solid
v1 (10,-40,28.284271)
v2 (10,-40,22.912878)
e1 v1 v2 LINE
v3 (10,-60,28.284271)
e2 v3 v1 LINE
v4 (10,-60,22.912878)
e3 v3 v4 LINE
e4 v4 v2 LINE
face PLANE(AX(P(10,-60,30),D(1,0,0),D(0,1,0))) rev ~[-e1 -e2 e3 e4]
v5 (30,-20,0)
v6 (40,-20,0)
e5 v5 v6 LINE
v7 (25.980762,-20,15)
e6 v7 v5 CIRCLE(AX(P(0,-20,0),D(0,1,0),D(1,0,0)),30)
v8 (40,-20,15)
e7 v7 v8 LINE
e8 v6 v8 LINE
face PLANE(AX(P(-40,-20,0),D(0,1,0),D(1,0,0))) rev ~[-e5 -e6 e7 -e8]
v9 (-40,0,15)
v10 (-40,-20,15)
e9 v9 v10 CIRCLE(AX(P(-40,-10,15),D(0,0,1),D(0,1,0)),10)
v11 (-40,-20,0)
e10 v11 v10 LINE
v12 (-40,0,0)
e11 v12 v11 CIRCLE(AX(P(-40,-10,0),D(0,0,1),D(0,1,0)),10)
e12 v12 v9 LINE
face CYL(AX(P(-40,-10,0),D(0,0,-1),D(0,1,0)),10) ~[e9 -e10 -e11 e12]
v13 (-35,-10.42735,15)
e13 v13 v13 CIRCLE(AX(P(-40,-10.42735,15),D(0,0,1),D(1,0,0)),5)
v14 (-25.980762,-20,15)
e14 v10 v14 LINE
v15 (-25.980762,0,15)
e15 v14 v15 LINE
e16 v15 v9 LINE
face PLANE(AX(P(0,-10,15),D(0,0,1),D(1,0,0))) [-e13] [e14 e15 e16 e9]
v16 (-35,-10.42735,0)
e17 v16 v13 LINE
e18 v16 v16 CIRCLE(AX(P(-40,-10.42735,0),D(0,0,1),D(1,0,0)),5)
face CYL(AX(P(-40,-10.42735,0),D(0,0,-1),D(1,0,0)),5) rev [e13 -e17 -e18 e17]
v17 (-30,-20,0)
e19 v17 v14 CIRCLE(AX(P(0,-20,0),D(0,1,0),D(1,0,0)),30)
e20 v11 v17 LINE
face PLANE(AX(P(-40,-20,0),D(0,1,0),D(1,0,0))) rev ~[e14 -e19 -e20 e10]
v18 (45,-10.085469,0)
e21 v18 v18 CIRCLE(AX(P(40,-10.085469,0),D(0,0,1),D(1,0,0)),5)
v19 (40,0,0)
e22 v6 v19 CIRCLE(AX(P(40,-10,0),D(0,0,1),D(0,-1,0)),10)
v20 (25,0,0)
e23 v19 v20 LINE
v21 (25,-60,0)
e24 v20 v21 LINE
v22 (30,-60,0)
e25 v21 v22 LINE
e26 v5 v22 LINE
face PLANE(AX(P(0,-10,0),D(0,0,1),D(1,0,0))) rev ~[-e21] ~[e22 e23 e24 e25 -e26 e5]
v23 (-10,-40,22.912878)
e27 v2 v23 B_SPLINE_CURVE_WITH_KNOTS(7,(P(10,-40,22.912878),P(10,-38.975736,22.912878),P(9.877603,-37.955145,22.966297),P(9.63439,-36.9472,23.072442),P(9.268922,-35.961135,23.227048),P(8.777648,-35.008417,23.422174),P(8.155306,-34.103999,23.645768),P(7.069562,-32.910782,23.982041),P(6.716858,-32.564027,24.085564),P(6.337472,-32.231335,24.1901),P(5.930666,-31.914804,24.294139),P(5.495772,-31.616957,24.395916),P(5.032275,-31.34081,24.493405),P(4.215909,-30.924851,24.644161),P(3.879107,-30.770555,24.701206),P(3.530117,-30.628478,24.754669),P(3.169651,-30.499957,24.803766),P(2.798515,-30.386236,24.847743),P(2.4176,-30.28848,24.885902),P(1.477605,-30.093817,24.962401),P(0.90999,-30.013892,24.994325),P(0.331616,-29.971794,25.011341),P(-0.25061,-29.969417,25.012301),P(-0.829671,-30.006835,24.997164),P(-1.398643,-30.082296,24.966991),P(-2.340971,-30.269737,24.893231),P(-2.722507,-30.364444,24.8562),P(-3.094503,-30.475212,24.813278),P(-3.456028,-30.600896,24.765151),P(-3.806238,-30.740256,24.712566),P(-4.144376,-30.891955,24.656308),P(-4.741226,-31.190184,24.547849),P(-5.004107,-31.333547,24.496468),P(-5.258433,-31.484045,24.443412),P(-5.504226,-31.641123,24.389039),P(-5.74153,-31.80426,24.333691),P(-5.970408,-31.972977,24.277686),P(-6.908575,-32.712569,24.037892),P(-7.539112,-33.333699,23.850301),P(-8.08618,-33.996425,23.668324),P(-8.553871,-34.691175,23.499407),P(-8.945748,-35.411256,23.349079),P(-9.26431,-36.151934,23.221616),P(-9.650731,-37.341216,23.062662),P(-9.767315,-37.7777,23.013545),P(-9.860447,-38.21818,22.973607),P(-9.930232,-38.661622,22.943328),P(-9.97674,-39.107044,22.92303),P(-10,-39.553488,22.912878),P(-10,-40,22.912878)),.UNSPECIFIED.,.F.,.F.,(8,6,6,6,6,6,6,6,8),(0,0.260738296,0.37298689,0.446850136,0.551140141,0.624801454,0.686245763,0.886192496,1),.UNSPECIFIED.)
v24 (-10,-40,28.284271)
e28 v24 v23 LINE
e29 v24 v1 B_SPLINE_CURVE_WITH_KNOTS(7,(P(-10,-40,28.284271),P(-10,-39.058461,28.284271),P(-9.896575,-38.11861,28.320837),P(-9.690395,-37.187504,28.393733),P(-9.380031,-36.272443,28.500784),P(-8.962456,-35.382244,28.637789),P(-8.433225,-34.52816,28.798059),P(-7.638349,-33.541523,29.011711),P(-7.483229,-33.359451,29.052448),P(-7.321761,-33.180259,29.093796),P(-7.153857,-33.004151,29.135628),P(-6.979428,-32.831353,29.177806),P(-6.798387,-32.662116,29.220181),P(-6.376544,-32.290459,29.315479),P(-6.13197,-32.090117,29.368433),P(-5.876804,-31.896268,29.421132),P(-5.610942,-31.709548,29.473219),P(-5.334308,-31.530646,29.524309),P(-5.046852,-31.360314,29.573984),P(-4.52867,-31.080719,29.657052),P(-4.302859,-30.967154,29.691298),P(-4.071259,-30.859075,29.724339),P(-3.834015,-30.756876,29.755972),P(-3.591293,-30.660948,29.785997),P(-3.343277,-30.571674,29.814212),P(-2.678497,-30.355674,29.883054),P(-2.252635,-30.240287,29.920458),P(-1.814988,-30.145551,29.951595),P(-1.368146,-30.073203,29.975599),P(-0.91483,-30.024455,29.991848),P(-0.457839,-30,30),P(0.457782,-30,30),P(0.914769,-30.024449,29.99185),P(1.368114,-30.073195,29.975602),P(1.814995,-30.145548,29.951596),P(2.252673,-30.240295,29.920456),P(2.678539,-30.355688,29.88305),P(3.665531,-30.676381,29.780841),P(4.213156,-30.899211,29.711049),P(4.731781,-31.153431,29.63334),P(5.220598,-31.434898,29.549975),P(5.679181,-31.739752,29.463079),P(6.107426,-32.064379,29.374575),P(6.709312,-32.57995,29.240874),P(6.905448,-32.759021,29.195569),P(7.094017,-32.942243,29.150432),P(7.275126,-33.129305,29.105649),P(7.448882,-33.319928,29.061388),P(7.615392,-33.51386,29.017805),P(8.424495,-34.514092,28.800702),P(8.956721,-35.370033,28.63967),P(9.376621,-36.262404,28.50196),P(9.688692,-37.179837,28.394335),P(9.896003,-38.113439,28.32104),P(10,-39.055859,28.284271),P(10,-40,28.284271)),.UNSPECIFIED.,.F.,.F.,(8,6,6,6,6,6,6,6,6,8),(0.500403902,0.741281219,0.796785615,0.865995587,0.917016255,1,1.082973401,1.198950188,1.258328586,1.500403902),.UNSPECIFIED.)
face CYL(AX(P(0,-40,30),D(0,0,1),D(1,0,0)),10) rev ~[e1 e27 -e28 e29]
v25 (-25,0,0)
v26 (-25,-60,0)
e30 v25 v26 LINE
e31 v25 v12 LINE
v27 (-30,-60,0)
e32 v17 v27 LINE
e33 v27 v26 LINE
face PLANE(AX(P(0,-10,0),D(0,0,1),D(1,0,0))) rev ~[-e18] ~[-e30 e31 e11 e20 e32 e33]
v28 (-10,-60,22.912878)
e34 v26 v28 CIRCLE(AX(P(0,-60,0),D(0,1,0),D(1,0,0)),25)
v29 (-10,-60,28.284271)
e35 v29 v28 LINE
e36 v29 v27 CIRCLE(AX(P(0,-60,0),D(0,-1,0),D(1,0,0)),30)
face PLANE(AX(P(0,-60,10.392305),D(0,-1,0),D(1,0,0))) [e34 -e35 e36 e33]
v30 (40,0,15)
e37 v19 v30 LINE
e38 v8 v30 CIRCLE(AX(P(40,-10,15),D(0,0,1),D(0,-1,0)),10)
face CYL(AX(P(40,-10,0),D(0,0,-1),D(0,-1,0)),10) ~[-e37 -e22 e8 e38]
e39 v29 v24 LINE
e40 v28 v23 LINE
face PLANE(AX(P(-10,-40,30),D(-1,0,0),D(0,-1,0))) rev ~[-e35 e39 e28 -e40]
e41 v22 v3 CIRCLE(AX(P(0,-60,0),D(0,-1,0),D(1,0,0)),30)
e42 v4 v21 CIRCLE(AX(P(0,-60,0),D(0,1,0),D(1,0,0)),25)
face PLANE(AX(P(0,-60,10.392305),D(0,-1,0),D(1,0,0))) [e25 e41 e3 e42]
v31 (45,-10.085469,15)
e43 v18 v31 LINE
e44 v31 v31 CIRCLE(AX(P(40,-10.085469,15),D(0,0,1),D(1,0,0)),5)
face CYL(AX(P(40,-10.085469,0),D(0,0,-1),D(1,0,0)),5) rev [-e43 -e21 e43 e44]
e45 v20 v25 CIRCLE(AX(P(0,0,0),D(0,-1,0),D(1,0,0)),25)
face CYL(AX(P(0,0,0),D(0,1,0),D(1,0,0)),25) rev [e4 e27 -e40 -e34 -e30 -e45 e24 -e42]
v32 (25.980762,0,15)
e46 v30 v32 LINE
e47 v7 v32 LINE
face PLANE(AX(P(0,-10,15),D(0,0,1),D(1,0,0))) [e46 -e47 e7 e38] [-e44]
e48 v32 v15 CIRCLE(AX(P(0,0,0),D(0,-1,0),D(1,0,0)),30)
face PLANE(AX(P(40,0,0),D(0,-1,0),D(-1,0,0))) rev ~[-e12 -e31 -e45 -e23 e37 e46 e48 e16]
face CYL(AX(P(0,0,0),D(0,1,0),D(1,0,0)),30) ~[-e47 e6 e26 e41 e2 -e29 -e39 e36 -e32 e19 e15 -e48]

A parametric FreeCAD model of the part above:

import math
import FreeCAD as App
import Part
import Sketcher

V = App.Vector

doc = App.newDocument("Part")
body = doc.addObject("PartDesign::Body", "Body")

sketch1 = body.newObject("Sketcher::SketchObject", "Sketch")
sketch1.AttachmentSupport = (doc.getObject("XZ_Plane"), [""])
sketch1.MapMode = "FlatFace"
sketch1.addGeometry(Part.ArcOfCircle(Part.Circle(V(0, 0, 0), V(0, 0, 1), 30), math.radians(0), math.radians(180)), False)
sketch1.addGeometry(Part.LineSegment(V(-30, 0, 0), V(30, 0, 0)), False)
sketch1.addConstraint(Sketcher.Constraint("Coincident", 0, 1, 1, 2))
sketch1.addConstraint(Sketcher.Constraint("Coincident", 1, 1, 0, 2))
sketch1.addConstraint(Sketcher.Constraint("Horizontal", 1))
sketch1.addConstraint(Sketcher.Constraint("Coincident", 0, 3, -1, 1))
sketch1.addConstraint(Sketcher.Constraint("PointOnObject", 0, 1, -1))
sketch1.addConstraint(Sketcher.Constraint("Radius", 0, 30.0))
pad1 = body.newObject("PartDesign::Pad", "Pad")
pad1.Profile = sketch1
pad1.Length = 60

sketch2 = body.newObject("Sketcher::SketchObject", "Sketch001")
sketch2.AttachmentSupport = (doc.getObject("XY_Plane"), [""])
sketch2.MapMode = "FlatFace"
sketch2.addGeometry(Part.LineSegment(V(40, 0, 0), V(-40, 0, 0)), False)
sketch2.addGeometry(Part.ArcOfCircle(Part.Circle(V(-40, -10, 0), V(0, 0, 1), 10), math.radians(90), math.radians(270)), False)
sketch2.addGeometry(Part.LineSegment(V(-40, -20, 0), V(40, -20, 0)), False)
sketch2.addGeometry(Part.ArcOfCircle(Part.Circle(V(40, -10, 0), V(0, 0, 1), 10), math.radians(-90), math.radians(90)), False)
sketch2.addConstraint(Sketcher.Constraint("Tangent", 0, 2, 1, 1))
sketch2.addConstraint(Sketcher.Constraint("Tangent", 1, 2, 2, 1))
sketch2.addConstraint(Sketcher.Constraint("Tangent", 2, 2, 3, 1))
sketch2.addConstraint(Sketcher.Constraint("Tangent", 3, 2, 0, 1))
sketch2.addConstraint(Sketcher.Constraint("Horizontal", 0))
sketch2.addConstraint(Sketcher.Constraint("Horizontal", 2))
sketch2.addConstraint(Sketcher.Constraint("Symmetric", 0, 2, 3, 2, -1, 1))
sketch2.addConstraint(Sketcher.Constraint("Radius", 1, 10.0))
sketch2.addConstraint(Sketcher.Constraint("DistanceX", 0, 2, 0, 1, 80.0))
pad2 = body.newObject("PartDesign::Pad", "Pad001")
pad2.Profile = sketch2
pad2.Length = 15

sketch3 = body.newObject("Sketcher::SketchObject", "Sketch002")
sketch3.AttachmentSupport = (doc.getObject("XZ_Plane"), [""])
sketch3.MapMode = "FlatFace"
sketch3.addGeometry(Part.ArcOfCircle(Part.Circle(V(0, 0, 0), V(0, 0, 1), 25), math.radians(0), math.radians(180)), False)
sketch3.addGeometry(Part.LineSegment(V(-25, 0, 0), V(25, 0, 0)), False)
sketch3.addConstraint(Sketcher.Constraint("Coincident", 0, 1, 1, 2))
sketch3.addConstraint(Sketcher.Constraint("Coincident", 1, 1, 0, 2))
sketch3.addConstraint(Sketcher.Constraint("Horizontal", 1))
sketch3.addConstraint(Sketcher.Constraint("Coincident", 0, 3, -1, 1))
sketch3.addConstraint(Sketcher.Constraint("PointOnObject", 0, 1, -1))
sketch3.addConstraint(Sketcher.Constraint("Radius", 0, 25.0))
pocket1 = body.newObject("PartDesign::Pocket", "Pocket")
pocket1.Profile = sketch3
pocket1.Type = "ThroughAll"
pocket1.Reversed = True

sketch4 = body.newObject("Sketcher::SketchObject", "Sketch003")
sketch4.AttachmentSupport = (doc.getObject("XY_Plane"), [""])
sketch4.MapMode = "FlatFace"
sketch4.AttachmentOffset = App.Placement(V(0, 0, 30), App.Rotation())
sketch4.addGeometry(Part.LineSegment(V(-10, -60, 0), V(10, -60, 0)), False)
sketch4.addGeometry(Part.LineSegment(V(10, -60, 0), V(10, -40, 0)), False)
sketch4.addGeometry(Part.ArcOfCircle(Part.Circle(V(0, -40, 0), V(0, 0, 1), 10), math.radians(0), math.radians(180)), False)
sketch4.addGeometry(Part.LineSegment(V(-10, -40, 0), V(-10, -60, 0)), False)
sketch4.addConstraint(Sketcher.Constraint("Coincident", 0, 2, 1, 1))
sketch4.addConstraint(Sketcher.Constraint("Tangent", 1, 2, 2, 1))
sketch4.addConstraint(Sketcher.Constraint("Tangent", 2, 2, 3, 1))
sketch4.addConstraint(Sketcher.Constraint("Coincident", 3, 2, 0, 1))
sketch4.addConstraint(Sketcher.Constraint("Horizontal", 0))
sketch4.addConstraint(Sketcher.Constraint("Vertical", 1))
sketch4.addConstraint(Sketcher.Constraint("Vertical", 3))
sketch4.addConstraint(Sketcher.Constraint("PointOnObject", 2, 3, -2))
sketch4.addConstraint(Sketcher.Constraint("Equal", 0, 1))
sketch4.addConstraint(Sketcher.Constraint("Radius", 2, 10.0))
sketch4.addConstraint(Sketcher.Constraint("DistanceY", 2, 3, -1, 1, 40.0))
pocket2 = body.newObject("PartDesign::Pocket", "Pocket001")
pocket2.Profile = sketch4
pocket2.Type = "ThroughAll"

sketch5 = body.newObject("Sketcher::SketchObject", "Sketch004")
sketch5.AttachmentSupport = (doc.getObject("XY_Plane"), [""])
sketch5.MapMode = "FlatFace"
sketch5.addGeometry(Part.Circle(V(-40, -10, 0), V(0, 0, 1), 5), False)
sketch5.addGeometry(Part.Circle(V(40, -10, 0), V(0, 0, 1), 5), False)
sketch5.addConstraint(Sketcher.Constraint("Equal", 0, 1))
sketch5.addConstraint(Sketcher.Constraint("Diameter", 0, 10.0))
sketch5.addConstraint(Sketcher.Constraint("DistanceX", 0, 3, -1, 1, 40.0))
sketch5.addConstraint(Sketcher.Constraint("DistanceX", -1, 1, 1, 3, 40.0))
sketch5.addConstraint(Sketcher.Constraint("DistanceY", 0, 3, -1, 1, 10.42735))
sketch5.addConstraint(Sketcher.Constraint("DistanceY", 1, 3, -1, 1, 10.085469))
pocket3 = body.newObject("PartDesign::Pocket", "Pocket002")
pocket3.Profile = sketch5
pocket3.Type = "ThroughAll"
pocket3.Reversed = True

doc.recompute()
